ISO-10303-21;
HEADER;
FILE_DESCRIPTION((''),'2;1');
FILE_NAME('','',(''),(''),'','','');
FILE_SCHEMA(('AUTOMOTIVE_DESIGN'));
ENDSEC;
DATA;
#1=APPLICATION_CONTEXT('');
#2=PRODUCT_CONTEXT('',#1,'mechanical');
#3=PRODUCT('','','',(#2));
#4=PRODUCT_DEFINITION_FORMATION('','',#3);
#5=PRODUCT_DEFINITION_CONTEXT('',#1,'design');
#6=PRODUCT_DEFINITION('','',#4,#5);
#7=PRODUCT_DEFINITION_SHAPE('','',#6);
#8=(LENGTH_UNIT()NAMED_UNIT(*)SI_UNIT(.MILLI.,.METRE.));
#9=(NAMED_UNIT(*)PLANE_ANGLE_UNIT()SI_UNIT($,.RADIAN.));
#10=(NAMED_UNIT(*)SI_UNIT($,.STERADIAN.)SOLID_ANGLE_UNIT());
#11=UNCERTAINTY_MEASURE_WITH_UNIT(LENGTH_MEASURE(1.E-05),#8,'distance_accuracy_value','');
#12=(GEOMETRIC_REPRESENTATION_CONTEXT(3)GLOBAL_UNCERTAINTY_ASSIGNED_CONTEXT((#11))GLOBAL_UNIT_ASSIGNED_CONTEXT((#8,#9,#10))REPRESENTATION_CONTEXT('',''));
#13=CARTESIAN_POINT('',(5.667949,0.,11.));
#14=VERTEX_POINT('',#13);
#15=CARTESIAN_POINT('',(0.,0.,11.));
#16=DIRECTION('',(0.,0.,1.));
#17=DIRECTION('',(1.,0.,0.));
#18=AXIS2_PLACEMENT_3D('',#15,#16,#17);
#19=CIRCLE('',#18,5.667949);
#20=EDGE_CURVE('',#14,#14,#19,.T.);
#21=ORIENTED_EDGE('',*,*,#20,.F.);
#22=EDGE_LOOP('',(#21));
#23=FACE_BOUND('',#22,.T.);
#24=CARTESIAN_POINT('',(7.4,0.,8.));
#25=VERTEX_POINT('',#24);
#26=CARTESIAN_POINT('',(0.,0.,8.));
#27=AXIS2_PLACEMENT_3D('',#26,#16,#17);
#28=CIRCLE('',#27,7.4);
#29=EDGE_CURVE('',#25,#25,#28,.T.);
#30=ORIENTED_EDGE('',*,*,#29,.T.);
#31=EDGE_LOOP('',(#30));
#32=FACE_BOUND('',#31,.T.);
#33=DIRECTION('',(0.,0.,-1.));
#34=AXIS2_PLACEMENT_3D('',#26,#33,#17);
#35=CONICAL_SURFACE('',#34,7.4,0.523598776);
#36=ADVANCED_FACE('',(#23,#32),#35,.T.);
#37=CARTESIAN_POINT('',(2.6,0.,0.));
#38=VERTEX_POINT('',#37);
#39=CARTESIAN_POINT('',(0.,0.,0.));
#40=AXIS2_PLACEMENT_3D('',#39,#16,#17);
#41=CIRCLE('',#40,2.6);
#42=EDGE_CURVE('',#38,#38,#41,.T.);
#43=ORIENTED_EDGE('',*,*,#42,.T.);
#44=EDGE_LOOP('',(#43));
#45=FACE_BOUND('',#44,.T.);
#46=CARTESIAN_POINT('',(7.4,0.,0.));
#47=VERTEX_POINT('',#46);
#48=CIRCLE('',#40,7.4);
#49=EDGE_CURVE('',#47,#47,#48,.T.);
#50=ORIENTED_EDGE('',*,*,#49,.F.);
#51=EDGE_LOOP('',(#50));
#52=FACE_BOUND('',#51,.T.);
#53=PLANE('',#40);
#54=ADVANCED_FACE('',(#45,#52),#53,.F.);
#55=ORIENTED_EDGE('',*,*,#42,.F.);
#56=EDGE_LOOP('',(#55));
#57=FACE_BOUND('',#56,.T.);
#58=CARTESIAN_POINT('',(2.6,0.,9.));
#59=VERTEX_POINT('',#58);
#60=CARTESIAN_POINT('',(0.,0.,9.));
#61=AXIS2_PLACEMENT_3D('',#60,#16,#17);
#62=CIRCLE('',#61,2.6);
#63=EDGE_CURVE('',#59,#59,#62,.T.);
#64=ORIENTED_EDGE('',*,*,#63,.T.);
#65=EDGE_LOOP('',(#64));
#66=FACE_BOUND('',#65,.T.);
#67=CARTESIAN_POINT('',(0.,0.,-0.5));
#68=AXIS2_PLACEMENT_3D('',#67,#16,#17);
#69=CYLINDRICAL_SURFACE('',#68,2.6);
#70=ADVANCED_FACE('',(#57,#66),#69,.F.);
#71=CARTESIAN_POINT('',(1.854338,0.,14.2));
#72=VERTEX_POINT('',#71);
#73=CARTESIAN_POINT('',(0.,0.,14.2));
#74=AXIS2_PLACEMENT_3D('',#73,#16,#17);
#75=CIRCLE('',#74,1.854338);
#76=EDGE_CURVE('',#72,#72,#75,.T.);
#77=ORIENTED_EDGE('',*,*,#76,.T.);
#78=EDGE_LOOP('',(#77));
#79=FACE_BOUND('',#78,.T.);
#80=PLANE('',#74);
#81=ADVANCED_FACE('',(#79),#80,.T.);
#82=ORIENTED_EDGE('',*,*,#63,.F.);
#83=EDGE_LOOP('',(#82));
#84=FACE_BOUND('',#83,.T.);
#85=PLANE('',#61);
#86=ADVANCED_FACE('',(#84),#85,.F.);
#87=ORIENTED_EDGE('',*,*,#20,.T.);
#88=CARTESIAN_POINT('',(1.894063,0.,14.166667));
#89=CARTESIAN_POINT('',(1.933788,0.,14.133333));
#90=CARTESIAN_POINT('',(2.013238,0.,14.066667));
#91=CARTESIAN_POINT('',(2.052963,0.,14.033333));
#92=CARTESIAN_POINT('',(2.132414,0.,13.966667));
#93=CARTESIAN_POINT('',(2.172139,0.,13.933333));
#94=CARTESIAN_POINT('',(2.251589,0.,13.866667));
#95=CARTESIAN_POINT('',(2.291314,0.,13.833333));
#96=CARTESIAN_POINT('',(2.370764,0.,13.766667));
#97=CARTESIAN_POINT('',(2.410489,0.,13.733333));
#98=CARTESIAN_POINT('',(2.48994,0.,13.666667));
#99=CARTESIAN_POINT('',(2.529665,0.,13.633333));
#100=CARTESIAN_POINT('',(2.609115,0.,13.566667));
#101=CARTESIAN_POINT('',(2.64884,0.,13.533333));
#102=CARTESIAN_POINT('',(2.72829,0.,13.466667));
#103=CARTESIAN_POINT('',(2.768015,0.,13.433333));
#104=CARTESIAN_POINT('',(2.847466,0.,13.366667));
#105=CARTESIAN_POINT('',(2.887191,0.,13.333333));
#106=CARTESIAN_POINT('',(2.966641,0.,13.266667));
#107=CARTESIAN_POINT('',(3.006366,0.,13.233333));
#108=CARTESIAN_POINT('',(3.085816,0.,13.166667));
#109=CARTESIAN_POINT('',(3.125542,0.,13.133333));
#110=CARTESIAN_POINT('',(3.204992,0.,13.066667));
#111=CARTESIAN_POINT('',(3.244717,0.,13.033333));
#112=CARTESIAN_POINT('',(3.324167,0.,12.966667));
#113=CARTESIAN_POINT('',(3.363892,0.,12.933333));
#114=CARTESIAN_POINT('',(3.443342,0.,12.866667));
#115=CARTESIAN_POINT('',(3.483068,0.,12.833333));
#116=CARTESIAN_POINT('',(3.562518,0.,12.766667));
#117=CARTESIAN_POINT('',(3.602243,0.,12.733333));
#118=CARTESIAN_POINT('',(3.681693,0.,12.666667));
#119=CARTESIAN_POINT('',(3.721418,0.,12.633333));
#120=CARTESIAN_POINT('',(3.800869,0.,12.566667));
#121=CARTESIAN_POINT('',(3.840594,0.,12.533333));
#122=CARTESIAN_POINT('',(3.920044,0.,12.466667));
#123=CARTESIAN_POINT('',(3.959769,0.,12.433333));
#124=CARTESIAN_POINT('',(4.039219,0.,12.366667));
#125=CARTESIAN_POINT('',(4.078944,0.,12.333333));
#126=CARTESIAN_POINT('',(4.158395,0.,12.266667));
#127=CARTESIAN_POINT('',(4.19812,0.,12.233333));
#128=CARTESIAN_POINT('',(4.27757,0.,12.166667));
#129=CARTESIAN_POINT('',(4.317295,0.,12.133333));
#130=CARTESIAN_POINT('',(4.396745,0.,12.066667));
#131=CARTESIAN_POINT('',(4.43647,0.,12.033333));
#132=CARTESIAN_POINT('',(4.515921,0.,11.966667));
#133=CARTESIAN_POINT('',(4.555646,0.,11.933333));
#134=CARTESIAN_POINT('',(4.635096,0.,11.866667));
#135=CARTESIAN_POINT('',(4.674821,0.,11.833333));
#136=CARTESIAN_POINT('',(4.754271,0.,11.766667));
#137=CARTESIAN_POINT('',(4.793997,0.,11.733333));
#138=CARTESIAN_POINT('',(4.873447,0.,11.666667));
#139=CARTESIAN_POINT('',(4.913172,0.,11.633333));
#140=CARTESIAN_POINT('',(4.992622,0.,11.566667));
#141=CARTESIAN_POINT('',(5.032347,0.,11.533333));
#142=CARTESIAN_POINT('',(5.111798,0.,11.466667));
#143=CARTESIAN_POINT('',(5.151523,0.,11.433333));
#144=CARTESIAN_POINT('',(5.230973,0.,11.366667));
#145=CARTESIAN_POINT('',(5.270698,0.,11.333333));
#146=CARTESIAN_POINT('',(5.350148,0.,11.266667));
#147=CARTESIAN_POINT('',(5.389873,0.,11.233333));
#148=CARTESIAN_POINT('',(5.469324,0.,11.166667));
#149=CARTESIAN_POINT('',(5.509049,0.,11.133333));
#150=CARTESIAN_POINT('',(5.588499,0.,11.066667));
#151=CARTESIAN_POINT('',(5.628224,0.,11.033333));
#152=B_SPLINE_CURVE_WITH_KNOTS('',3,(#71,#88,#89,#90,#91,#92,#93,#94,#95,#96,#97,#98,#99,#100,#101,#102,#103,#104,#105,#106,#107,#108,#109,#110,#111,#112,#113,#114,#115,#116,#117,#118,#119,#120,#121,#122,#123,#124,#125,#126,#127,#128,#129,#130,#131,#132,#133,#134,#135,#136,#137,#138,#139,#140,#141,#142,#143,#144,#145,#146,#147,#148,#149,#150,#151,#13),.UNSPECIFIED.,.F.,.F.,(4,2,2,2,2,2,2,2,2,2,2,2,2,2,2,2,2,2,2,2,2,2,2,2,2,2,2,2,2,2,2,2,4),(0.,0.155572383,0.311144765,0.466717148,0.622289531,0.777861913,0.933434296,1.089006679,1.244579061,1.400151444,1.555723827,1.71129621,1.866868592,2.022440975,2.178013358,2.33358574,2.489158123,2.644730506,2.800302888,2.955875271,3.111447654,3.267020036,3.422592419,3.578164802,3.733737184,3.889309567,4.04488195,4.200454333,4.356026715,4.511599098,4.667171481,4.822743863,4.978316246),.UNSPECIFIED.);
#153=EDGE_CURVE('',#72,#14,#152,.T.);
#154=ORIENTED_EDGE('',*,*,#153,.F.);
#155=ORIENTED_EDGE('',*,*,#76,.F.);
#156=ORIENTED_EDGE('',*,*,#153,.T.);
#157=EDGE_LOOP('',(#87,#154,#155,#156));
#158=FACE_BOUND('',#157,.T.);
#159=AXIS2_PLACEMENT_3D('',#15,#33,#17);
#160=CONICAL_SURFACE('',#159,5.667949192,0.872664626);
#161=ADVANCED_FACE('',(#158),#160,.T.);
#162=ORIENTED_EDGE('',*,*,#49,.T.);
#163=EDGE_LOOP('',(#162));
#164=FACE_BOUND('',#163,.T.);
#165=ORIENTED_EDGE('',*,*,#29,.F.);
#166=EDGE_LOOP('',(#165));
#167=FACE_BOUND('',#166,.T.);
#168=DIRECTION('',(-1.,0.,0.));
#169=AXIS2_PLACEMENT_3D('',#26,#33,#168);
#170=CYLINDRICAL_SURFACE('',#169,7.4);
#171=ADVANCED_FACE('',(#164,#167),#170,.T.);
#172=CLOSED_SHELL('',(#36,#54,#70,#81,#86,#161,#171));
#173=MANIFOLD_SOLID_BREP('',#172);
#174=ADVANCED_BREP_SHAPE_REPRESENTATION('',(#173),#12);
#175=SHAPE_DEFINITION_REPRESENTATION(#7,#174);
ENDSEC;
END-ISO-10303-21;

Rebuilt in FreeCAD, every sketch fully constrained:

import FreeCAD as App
import Part
import Sketcher

V = App.Vector
Q = App.Units.Quantity

doc = App.newDocument("Part")
params = doc.addObject("Spreadsheet::Sheet", "Params")
for row, (alias, value) in enumerate([
    ("sketch1_diameter", "14.8 mm"),
    ("pad1_length", "8 mm"),
    ("sketch2_diameter", "14.8 mm"),
    ("pad2_length", "3 mm"),
    ("pad2_taper", "-30 deg"),
    ("pad3_length", "3.2 mm"),
    ("pad3_taper", "-50 deg"),
    ("sketch4_diameter", "5.2 mm"),
    ("pocket1_length", "9.5 mm"),
], start=1):
    params.set(f"A{row}", alias)
    params.set(f"B{row}", "=" + value)
    params.setAlias(f"B{row}", alias)

body = doc.addObject("PartDesign::Body", "Body")

sketch1 = body.newObject("Sketcher::SketchObject", "Sketch")
sketch1.AttachmentSupport = (doc.getObject("XY_Plane"), [""])
sketch1.MapMode = "FlatFace"
sketch1.addGeometry(Part.Circle(V(0, 0, 0), V(0, 0, 1), 7.4), False)
sketch1.addConstraint(Sketcher.Constraint("Coincident", 0, 3, -1, 1))
sketch1.addConstraint(Sketcher.Constraint("Diameter", 0, Q("14.8 mm")))
sketch1.setExpression("Constraints[1]", "Params.sketch1_diameter")
pad1 = body.newObject("PartDesign::Pad", "Pad")
pad1.Profile = sketch1
pad1.setExpression("Length", "Params.pad1_length")

sketch2 = body.newObject("Sketcher::SketchObject", "Sketch001")
sketch2.AttachmentSupport = (doc.getObject("XY_Plane"), [""])
sketch2.MapMode = "FlatFace"
sketch2.AttachmentOffset = App.Placement(V(0, 0, 8), App.Rotation())
sketch2.addGeometry(Part.Circle(V(0, 0, 0), V(0, 0, 1), 7.4), False)
sketch2.addConstraint(Sketcher.Constraint("Coincident", 0, 3, -1, 1))
sketch2.addConstraint(Sketcher.Constraint("Diameter", 0, Q("14.8 mm")))
sketch2.setExpression("Constraints[1]", "Params.sketch2_diameter")
pad2 = body.newObject("PartDesign::Pad", "Pad001")
pad2.Profile = sketch2
pad2.setExpression("Length", "Params.pad2_length")
pad2.setExpression("TaperAngle", "Params.pad2_taper")

sketch3 = body.newObject("Sketcher::SketchObject", "Sketch002")
sketch3.AttachmentSupport = (doc.getObject("XY_Plane"), [""])
sketch3.MapMode = "FlatFace"
sketch3.AttachmentOffset = App.Placement(V(0, 0, 11), App.Rotation())
sketch3.addGeometry(Part.Circle(V(0, 0, 0), V(0, 0, 1), 5.667949), False)
sketch3.addConstraint(Sketcher.Constraint("Coincident", 0, 3, -1, 1))
sketch3.addConstraint(Sketcher.Constraint("Diameter", 0, Q("11.335898 mm")))
pad3 = body.newObject("PartDesign::Pad", "Pad002")
pad3.Profile = sketch3
pad3.setExpression("Length", "Params.pad3_length")
pad3.setExpression("TaperAngle", "Params.pad3_taper")

sketch4 = body.newObject("Sketcher::SketchObject", "Sketch003")
sketch4.AttachmentSupport = (doc.getObject("XY_Plane"), [""])
sketch4.MapMode = "FlatFace"
sketch4.AttachmentOffset = App.Placement(V(0, 0, 4.25), App.Rotation())
sketch4.addGeometry(Part.Circle(V(0, 0, 0), V(0, 0, 1), 2.6), False)
sketch4.addConstraint(Sketcher.Constraint("Coincident", 0, 3, -1, 1))
sketch4.addConstraint(Sketcher.Constraint("Diameter", 0, Q("5.2 mm")))
sketch4.setExpression("Constraints[1]", "Params.sketch4_diameter")
pocket1 = body.newObject("PartDesign::Pocket", "Pocket")
pocket1.Profile = sketch4
pocket1.setExpression("Length", "Params.pocket1_length")
pocket1.Midplane = True

doc.recompute()
